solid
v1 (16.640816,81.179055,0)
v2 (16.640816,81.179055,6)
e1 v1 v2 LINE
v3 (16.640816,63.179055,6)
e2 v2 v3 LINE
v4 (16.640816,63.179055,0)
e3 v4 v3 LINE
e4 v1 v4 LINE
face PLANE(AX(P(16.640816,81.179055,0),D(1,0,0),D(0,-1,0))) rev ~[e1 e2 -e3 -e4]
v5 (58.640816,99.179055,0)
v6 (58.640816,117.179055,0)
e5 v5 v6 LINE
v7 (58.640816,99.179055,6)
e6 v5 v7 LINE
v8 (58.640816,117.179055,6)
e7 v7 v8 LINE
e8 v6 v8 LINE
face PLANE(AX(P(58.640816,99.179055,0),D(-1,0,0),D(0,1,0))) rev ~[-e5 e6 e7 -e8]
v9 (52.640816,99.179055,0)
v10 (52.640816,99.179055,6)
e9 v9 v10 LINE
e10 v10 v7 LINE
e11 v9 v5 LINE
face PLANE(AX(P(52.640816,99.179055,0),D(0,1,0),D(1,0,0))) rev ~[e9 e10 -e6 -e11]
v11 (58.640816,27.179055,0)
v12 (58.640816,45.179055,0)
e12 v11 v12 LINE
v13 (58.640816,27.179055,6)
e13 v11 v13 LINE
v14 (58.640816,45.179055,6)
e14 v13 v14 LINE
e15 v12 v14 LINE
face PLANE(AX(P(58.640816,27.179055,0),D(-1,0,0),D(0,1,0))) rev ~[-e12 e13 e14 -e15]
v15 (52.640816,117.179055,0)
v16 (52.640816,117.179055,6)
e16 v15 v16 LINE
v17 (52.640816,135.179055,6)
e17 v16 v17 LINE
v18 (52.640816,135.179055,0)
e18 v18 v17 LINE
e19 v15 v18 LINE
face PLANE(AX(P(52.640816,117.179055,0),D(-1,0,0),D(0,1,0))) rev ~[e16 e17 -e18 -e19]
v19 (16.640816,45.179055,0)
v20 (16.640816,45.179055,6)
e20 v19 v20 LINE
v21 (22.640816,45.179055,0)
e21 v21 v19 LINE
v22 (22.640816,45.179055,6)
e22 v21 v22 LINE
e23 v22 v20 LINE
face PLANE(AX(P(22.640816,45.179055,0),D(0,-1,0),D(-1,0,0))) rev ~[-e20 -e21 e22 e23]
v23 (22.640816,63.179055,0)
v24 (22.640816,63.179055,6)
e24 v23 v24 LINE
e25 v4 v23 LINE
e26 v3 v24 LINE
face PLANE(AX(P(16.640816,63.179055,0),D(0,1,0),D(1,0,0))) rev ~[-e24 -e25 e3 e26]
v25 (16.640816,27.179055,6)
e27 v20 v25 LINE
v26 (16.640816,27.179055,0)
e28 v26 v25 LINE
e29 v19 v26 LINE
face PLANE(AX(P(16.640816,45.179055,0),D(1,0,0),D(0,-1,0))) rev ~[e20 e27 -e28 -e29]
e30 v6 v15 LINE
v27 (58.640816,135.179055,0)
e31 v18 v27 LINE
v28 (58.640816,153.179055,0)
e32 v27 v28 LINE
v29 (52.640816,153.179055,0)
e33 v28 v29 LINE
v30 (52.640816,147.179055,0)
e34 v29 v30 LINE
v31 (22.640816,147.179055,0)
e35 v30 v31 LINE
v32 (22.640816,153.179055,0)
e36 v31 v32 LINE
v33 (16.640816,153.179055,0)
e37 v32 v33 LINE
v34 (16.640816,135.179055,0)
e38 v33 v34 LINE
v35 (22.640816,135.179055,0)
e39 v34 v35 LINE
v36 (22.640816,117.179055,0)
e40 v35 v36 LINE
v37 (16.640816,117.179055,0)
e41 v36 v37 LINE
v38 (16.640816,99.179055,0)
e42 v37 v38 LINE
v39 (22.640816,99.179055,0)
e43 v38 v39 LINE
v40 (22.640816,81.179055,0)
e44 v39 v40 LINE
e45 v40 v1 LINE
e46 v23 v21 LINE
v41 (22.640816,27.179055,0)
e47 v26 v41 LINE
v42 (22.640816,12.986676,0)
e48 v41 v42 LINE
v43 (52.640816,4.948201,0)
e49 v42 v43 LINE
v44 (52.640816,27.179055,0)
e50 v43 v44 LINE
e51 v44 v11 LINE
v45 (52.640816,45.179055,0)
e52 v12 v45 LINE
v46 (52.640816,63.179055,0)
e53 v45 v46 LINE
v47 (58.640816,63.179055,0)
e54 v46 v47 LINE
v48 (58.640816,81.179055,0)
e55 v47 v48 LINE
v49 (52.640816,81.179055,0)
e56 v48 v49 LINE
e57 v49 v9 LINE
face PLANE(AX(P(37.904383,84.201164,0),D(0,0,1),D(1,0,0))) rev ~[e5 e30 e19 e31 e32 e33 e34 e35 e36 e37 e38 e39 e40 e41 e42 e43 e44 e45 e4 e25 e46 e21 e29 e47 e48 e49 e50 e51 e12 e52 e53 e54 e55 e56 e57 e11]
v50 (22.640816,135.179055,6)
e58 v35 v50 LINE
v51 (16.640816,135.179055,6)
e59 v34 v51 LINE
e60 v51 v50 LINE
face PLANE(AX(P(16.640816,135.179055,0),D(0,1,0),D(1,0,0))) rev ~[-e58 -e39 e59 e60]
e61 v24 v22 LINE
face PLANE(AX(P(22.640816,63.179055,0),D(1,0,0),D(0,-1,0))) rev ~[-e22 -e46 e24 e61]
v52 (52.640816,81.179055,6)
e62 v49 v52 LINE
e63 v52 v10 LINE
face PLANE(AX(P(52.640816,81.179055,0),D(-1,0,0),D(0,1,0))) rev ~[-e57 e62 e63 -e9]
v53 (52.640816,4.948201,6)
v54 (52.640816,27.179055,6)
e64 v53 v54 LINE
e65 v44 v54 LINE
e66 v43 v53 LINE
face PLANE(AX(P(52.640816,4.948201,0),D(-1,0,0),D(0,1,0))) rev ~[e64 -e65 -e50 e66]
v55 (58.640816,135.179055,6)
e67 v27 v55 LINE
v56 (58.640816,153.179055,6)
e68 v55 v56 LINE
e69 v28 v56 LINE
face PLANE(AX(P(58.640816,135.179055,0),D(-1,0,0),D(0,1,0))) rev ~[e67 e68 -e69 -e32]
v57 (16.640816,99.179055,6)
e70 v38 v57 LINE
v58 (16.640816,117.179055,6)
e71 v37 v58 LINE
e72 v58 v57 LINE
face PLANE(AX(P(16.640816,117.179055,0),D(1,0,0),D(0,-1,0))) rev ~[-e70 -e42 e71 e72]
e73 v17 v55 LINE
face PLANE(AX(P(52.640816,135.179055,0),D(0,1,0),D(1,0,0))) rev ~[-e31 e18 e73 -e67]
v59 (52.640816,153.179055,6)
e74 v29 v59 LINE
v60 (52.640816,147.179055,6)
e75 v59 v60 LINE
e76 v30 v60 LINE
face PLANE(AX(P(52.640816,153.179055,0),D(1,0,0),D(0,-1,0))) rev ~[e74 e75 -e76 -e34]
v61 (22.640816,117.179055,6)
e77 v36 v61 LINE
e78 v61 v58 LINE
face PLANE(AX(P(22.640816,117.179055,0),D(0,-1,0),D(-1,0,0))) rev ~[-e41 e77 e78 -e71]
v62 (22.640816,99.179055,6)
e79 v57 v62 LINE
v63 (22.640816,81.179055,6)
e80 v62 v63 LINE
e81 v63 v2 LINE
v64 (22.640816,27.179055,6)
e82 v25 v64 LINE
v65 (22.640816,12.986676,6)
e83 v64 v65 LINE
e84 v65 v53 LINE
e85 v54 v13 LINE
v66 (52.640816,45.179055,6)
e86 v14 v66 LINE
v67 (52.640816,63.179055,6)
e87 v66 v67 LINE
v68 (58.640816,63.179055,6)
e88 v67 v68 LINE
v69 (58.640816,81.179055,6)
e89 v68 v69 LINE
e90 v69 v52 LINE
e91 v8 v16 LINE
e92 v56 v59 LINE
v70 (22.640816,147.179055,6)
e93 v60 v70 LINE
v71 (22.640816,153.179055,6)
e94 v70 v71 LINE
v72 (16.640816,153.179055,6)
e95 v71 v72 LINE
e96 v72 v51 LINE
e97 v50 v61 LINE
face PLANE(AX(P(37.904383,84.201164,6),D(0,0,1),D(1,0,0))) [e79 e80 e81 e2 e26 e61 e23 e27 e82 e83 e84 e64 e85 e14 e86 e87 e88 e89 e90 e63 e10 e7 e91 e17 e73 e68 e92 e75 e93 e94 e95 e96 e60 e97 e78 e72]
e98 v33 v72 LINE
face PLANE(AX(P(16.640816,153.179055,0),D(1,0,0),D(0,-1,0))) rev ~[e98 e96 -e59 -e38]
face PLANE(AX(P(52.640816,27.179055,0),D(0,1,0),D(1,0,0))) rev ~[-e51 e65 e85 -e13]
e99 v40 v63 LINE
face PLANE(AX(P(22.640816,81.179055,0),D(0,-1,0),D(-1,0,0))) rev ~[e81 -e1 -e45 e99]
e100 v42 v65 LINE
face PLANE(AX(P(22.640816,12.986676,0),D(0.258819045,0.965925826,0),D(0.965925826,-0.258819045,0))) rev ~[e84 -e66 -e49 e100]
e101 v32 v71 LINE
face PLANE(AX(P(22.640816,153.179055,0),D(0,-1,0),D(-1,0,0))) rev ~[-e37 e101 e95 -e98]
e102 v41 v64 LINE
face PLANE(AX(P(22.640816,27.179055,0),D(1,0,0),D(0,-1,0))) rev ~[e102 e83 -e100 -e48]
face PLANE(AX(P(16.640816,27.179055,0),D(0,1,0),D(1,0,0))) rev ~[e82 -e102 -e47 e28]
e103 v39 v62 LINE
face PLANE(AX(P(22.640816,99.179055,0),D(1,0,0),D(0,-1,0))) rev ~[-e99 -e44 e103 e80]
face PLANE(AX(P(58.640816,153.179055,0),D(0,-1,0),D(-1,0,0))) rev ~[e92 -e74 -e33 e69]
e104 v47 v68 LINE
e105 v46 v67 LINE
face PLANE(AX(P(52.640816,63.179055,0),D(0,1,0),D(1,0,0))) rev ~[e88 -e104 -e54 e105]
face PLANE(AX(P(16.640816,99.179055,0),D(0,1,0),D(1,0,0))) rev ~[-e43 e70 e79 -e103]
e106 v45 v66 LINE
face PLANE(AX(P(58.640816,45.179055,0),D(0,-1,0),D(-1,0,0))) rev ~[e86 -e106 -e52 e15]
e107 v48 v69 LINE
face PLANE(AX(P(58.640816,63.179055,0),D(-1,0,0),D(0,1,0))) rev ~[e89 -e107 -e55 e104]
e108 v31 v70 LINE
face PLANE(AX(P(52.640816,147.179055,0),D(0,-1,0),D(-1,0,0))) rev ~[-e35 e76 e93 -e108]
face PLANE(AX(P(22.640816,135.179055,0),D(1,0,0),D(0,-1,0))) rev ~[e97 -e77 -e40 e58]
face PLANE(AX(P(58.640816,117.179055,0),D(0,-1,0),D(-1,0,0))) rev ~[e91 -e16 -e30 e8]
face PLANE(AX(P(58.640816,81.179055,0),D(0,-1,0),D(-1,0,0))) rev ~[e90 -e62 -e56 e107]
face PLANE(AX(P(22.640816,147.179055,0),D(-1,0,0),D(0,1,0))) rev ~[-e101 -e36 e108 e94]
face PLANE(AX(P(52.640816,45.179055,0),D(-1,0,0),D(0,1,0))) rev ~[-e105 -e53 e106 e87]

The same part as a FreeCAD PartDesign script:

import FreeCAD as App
import Part
import Sketcher

V = App.Vector
Q = App.Units.Quantity

doc = App.newDocument("Part")
body = doc.addObject("PartDesign::Body", "Body")

# Sketch on XY plane
sketch1 = doc.addObject("Sketcher::SketchObject", "Sketch")
body.addObject(sketch1)
sketch1.AttachmentSupport = (doc.XY_Plane, [""])
sketch1.MapMode = "FlatFace"
sketch1.addGeometry([
    Part.LineSegment(V(23, 13, 0), V(53, 5, 0)),  # 0
    Part.LineSegment(V(53, 5, 0), V(53, 27, 0)),  # 1
    Part.LineSegment(V(53, 27, 0), V(59, 27, 0)),  # 2
    Part.LineSegment(V(59, 27, 0), V(59, 45, 0)),  # 3
    Part.LineSegment(V(59, 45, 0), V(53, 45, 0)),  # 4
    Part.LineSegment(V(53, 45, 0), V(53, 63, 0)),  # 5
    Part.LineSegment(V(53, 63, 0), V(59, 63, 0)),  # 6
    Part.LineSegment(V(59, 63, 0), V(59, 81, 0)),  # 7
    Part.LineSegment(V(59, 81, 0), V(53, 81, 0)),  # 8
    Part.LineSegment(V(53, 81, 0), V(53, 99, 0)),  # 9
    Part.LineSegment(V(53, 99, 0), V(59, 99, 0)),  # 10
    Part.LineSegment(V(59, 99, 0), V(59, 117, 0)),  # 11
    Part.LineSegment(V(59, 117, 0), V(53, 117, 0)),  # 12
    Part.LineSegment(V(53, 117, 0), V(53, 135, 0)),  # 13
    Part.LineSegment(V(53, 135, 0), V(59, 135, 0)),  # 14
    Part.LineSegment(V(59, 135, 0), V(59, 153, 0)),  # 15
    Part.LineSegment(V(59, 153, 0), V(53, 153, 0)),  # 16
    Part.LineSegment(V(53, 153, 0), V(53, 147, 0)),  # 17
    Part.LineSegment(V(53, 147, 0), V(23, 147, 0)),  # 18
    Part.LineSegment(V(23, 147, 0), V(23, 153, 0)),  # 19
    Part.LineSegment(V(23, 153, 0), V(17, 153, 0)),  # 20
    Part.LineSegment(V(17, 153, 0), V(17, 135, 0)),  # 21
    Part.LineSegment(V(17, 135, 0), V(23, 135, 0)),  # 22
    Part.LineSegment(V(23, 135, 0), V(23, 117, 0)),  # 23
    Part.LineSegment(V(23, 117, 0), V(17, 117, 0)),  # 24
    Part.LineSegment(V(17, 117, 0), V(17, 99, 0)),  # 25
    Part.LineSegment(V(17, 99, 0), V(23, 99, 0)),  # 26
    Part.LineSegment(V(23, 99, 0), V(23, 81, 0)),  # 27
    Part.LineSegment(V(23, 81, 0), V(17, 81, 0)),  # 28
    Part.LineSegment(V(17, 81, 0), V(17, 63, 0)),  # 29
    Part.LineSegment(V(17, 63, 0), V(23, 63, 0)),  # 30
    Part.LineSegment(V(23, 63, 0), V(23, 45, 0)),  # 31
    Part.LineSegment(V(23, 45, 0), V(17, 45, 0)),  # 32
    Part.LineSegment(V(17, 45, 0), V(17, 27, 0)),  # 33
    Part.LineSegment(V(17, 27, 0), V(23, 27, 0)),  # 34
    Part.LineSegment(V(23, 27, 0), V(23, 13, 0)),  # 35
], False)
sketch1.addConstraint([
    Sketcher.Constraint("Coincident", 0, 2, 1, 1),
    Sketcher.Constraint("Coincident", 1, 2, 2, 1),
    Sketcher.Constraint("Coincident", 2, 2, 3, 1),
    Sketcher.Constraint("Coincident", 3, 2, 4, 1),
    Sketcher.Constraint("Coincident", 4, 2, 5, 1),
    Sketcher.Constraint("Coincident", 5, 2, 6, 1),
    Sketcher.Constraint("Coincident", 6, 2, 7, 1),
    Sketcher.Constraint("Coincident", 7, 2, 8, 1),
    Sketcher.Constraint("Coincident", 8, 2, 9, 1),
    Sketcher.Constraint("Coincident", 9, 2, 10, 1),
    Sketcher.Constraint("Coincident", 10, 2, 11, 1),
    Sketcher.Constraint("Coincident", 11, 2, 12, 1),
    Sketcher.Constraint("Coincident", 12, 2, 13, 1),
    Sketcher.Constraint("Coincident", 13, 2, 14, 1),
    Sketcher.Constraint("Coincident", 14, 2, 15, 1),
    Sketcher.Constraint("Coincident", 15, 2, 16, 1),
    Sketcher.Constraint("Coincident", 16, 2, 17, 1),
    Sketcher.Constraint("Coincident", 17, 2, 18, 1),
    Sketcher.Constraint("Coincident", 18, 2, 19, 1),
    Sketcher.Constraint("Coincident", 19, 2, 20, 1),
    Sketcher.Constraint("Coincident", 20, 2, 21, 1),
    Sketcher.Constraint("Coincident", 21, 2, 22, 1),
    Sketcher.Constraint("Coincident", 22, 2, 23, 1),
    Sketcher.Constraint("Coincident", 23, 2, 24, 1),
    Sketcher.Constraint("Coincident", 24, 2, 25, 1),
    Sketcher.Constraint("Coincident", 25, 2, 26, 1),
    Sketcher.Constraint("Coincident", 26, 2, 27, 1),
    Sketcher.Constraint("Coincident", 27, 2, 28, 1),
    Sketcher.Constraint("Coincident", 28, 2, 29, 1),
    Sketcher.Constraint("Coincident", 29, 2, 30, 1),
    Sketcher.Constraint("Coincident", 30, 2, 31, 1),
    Sketcher.Constraint("Coincident", 31, 2, 32, 1),
    Sketcher.Constraint("Coincident", 32, 2, 33, 1),
    Sketcher.Constraint("Coincident", 33, 2, 34, 1),
    Sketcher.Constraint("Coincident", 34, 2, 35, 1),
    Sketcher.Constraint("Coincident", 35, 2, 0, 1),
    Sketcher.Constraint("Vertical", 1),
    Sketcher.Constraint("Horizontal", 2),
    Sketcher.Constraint("Vertical", 3),
    Sketcher.Constraint("Horizontal", 4),
    Sketcher.Constraint("Vertical", 5),
    Sketcher.Constraint("Horizontal", 6),
    Sketcher.Constraint("Vertical", 7),
    Sketcher.Constraint("Horizontal", 8),
    Sketcher.Constraint("Vertical", 9),
    Sketcher.Constraint("Horizontal", 10),
    Sketcher.Constraint("Vertical", 11),
    Sketcher.Constraint("Horizontal", 12),
    Sketcher.Constraint("Vertical", 13),
    Sketcher.Constraint("Horizontal", 14),
    Sketcher.Constraint("Vertical", 15),
    Sketcher.Constraint("Horizontal", 16),
    Sketcher.Constraint("Vertical", 17),
    Sketcher.Constraint("Horizontal", 18),
    Sketcher.Constraint("Vertical", 19),
    Sketcher.Constraint("Horizontal", 20),
    Sketcher.Constraint("Vertical", 21),
    Sketcher.Constraint("Horizontal", 22),
    Sketcher.Constraint("Vertical", 23),
    Sketcher.Constraint("Horizontal", 24),
    Sketcher.Constraint("Vertical", 25),
    Sketcher.Constraint("Horizontal", 26),
    Sketcher.Constraint("Vertical", 27),
    Sketcher.Constraint("Horizontal", 28),
    Sketcher.Constraint("Vertical", 29),
    Sketcher.Constraint("Horizontal", 30),
    Sketcher.Constraint("Vertical", 31),
    Sketcher.Constraint("Horizontal", 32),
    Sketcher.Constraint("Vertical", 33),
    Sketcher.Constraint("Horizontal", 34),
    Sketcher.Constraint("Vertical", 35),
    Sketcher.Constraint("Horizontal", 16, 2, 19, 2),
    Sketcher.Constraint("Horizontal", 14, 2, 21, 2),
    Sketcher.Constraint("Horizontal", 12, 2, 23, 2),
    Sketcher.Constraint("Horizontal", 10, 2, 25, 2),
    Sketcher.Constraint("Horizontal", 8, 2, 27, 2),
    Sketcher.Constraint("Horizontal", 6, 2, 29, 2),
    Sketcher.Constraint("Horizontal", 4, 2, 31, 2),
    Sketcher.Constraint("Horizontal", 2, 2, 33, 2),
    Sketcher.Constraint("Vertical", 1, 2, 4, 2),
    Sketcher.Constraint("Vertical", 3, 2, 6, 2),
    Sketcher.Constraint("Vertical", 5, 2, 8, 2),
    Sketcher.Constraint("Vertical", 7, 2, 10, 2),
    Sketcher.Constraint("Vertical", 9, 2, 12, 2),
    Sketcher.Constraint("Vertical", 11, 2, 14, 2),
    Sketcher.Constraint("Vertical", 13, 2, 16, 2),
    Sketcher.Constraint("Vertical", 19, 2, 22, 2),
    Sketcher.Constraint("Vertical", 21, 2, 24, 2),
    Sketcher.Constraint("Vertical", 23, 2, 26, 2),
    Sketcher.Constraint("Vertical", 25, 2, 28, 2),
    Sketcher.Constraint("Vertical", 27, 2, 30, 2),
    Sketcher.Constraint("Vertical", 29, 2, 32, 2),
    Sketcher.Constraint("Vertical", 31, 2, 34, 2),
    Sketcher.Constraint("Equal", 16, 20),
    Sketcher.Constraint("Equal", 3, 5),
    Sketcher.Constraint("Equal", 5, 7),
    Sketcher.Constraint("Equal", 7, 9),
    Sketcher.Constraint("Equal", 9, 11),
    Sketcher.Constraint("Equal", 11, 13),
    Sketcher.Constraint("Equal", 13, 15),
    Sketcher.Constraint("Equal", 34, 17),
    Sketcher.Constraint("DistanceX", 2, 1, 2, 2, Q("6 mm")),
    Sketcher.Constraint("DistanceX", 18, 2, 18, 1, Q("30 mm")),
    Sketcher.Constraint("DistanceY", 3, 1, 3, 2, Q("18 mm")),
    Sketcher.Constraint("Angle", 0, Q("-15 deg")),
    Sketcher.Constraint("DistanceY", 35, 2, 35, 1, Q("14.192379 mm")),
    Sketcher.Constraint("DistanceY", -1, 1, 0, 2, Q("4.948201 mm")),
    Sketcher.Constraint("DistanceX", -1, 1, 0, 2, Q("52.640816 mm")),
])
pad1 = doc.addObject("PartDesign::Pad", "Pad")
body.addObject(pad1)
pad1.Profile = sketch1
pad1.Length = 6

doc.recompute()
